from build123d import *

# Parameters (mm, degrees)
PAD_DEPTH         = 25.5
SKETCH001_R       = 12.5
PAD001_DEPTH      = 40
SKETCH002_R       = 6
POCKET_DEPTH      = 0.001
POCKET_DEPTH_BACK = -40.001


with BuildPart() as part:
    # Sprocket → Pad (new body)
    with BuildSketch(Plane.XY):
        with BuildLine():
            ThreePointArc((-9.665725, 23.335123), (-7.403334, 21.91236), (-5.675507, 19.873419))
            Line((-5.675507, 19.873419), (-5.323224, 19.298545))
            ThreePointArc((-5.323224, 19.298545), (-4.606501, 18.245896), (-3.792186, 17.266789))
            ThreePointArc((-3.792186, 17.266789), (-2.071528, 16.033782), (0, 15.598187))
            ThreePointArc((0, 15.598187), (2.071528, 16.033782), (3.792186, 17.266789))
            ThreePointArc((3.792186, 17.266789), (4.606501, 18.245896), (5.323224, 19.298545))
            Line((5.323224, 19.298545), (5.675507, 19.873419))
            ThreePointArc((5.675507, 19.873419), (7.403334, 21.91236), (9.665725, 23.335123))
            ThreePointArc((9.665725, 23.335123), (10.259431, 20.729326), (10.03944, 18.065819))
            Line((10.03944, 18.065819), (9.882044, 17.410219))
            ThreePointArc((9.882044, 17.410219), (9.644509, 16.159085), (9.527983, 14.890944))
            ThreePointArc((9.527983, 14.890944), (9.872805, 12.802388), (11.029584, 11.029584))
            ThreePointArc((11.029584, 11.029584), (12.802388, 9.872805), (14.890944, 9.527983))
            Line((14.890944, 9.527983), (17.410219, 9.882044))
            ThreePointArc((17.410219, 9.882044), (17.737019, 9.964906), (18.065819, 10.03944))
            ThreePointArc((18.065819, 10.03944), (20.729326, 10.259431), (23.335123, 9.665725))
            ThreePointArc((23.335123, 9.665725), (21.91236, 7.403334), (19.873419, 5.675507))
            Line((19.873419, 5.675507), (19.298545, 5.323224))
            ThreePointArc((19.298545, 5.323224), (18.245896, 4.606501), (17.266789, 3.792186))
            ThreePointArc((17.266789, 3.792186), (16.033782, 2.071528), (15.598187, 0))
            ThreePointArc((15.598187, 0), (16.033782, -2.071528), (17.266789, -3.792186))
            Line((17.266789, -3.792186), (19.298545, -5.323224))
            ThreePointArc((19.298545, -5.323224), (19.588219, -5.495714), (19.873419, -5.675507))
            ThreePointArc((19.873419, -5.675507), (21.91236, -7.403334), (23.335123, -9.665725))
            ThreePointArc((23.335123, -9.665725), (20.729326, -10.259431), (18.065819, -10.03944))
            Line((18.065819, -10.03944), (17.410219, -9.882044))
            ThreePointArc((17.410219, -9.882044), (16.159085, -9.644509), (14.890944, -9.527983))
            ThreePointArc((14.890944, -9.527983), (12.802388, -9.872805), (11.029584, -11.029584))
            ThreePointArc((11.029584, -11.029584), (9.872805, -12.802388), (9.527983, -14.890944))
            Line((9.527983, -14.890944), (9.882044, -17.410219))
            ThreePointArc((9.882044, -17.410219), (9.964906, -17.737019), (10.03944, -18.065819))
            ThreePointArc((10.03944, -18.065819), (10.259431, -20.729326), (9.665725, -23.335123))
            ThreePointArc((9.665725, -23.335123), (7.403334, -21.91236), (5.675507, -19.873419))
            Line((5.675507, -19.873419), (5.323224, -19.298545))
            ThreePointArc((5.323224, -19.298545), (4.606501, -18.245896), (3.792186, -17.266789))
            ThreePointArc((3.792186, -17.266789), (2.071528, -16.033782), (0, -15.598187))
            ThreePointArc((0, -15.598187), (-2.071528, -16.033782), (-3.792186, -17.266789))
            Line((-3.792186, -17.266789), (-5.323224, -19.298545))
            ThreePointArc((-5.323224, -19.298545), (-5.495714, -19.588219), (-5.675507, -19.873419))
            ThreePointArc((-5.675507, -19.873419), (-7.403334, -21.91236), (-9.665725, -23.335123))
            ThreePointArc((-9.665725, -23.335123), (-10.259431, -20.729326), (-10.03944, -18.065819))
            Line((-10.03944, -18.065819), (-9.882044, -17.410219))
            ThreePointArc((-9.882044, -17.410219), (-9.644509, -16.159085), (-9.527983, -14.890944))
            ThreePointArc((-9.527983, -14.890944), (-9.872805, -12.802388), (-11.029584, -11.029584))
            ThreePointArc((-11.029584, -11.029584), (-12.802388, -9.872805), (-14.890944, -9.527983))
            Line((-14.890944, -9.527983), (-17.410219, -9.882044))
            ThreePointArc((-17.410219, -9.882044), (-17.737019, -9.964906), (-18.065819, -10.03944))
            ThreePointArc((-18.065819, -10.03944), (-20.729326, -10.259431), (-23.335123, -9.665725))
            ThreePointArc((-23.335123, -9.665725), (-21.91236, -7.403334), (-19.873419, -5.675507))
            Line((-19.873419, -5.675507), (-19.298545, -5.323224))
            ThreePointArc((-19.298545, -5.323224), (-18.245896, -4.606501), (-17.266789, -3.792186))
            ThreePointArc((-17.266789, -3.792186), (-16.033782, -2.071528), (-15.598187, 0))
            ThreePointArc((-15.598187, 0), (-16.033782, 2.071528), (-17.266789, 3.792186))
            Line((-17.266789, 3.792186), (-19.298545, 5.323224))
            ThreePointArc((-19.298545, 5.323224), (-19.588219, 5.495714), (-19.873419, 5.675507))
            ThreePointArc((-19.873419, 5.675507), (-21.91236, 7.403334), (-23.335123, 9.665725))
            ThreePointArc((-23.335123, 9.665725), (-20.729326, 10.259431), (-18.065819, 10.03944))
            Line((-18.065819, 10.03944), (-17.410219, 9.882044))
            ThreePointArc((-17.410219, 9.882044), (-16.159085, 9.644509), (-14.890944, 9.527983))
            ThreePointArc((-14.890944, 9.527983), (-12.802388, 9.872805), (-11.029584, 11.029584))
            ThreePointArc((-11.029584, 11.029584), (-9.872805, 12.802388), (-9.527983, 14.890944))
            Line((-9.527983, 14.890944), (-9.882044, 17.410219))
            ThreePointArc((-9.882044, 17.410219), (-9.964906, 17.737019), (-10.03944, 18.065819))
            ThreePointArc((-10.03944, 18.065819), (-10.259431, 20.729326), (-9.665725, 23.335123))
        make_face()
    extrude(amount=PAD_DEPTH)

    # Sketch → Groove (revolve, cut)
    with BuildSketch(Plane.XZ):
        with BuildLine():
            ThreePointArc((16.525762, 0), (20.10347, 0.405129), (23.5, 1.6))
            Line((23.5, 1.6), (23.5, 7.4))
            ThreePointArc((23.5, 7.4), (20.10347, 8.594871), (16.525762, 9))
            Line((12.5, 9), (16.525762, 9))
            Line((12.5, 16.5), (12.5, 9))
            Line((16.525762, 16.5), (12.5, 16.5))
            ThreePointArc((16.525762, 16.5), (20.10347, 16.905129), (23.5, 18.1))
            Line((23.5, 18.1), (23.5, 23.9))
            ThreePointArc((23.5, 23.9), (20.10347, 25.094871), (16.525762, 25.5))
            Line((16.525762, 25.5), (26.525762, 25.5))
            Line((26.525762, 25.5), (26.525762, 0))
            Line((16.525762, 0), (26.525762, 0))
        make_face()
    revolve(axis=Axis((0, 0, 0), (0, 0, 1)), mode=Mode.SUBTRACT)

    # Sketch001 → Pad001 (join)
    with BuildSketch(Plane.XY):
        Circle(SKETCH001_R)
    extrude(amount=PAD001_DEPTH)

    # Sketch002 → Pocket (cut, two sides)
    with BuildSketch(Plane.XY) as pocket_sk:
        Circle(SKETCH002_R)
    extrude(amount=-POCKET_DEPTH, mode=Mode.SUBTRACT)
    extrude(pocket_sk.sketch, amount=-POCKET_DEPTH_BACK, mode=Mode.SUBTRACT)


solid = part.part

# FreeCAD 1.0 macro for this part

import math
import FreeCAD as App
import Part
import Sketcher
from FreeCAD import Vector
Q = App.Units.Quantity

doc = App.newDocument("Part")
body = doc.addObject("PartDesign::Body", "Body")

# Sketch on XY plane
sketch1 = body.newObject("Sketcher::SketchObject", "Sketch")
sketch1.AttachmentSupport = (doc.getObject("XY_Plane"), [""])
sketch1.MapMode = "FlatFace"
sketch1.addGeometry([
    Part.ArcOfCircle(Part.Circle(Vector(-13.141261, 15.298398, 0), Vector(0, 0, 1), 8.756044), math.radians(31.500006), math.radians(66.613605)),  # 0
    Part.ArcOfCircle(Part.Circle(Vector(-1.525324, 20.109877, 0), Vector(0, 0, 1), 8.756046), math.radians(158.386411), math.radians(193.499995)),  # 1
    Part.ArcOfCircle(Part.Circle(Vector(2.939557, 20.835114, 0), Vector(0, 0, 1), 13.271147), math.radians(-167.955557), math.radians(-165.044382)),  # 2
    Part.LineSegment(Vector(-9.882044, 17.410219, 0), Vector(-9.527983, 14.890944, 0)),  # 3
    Part.ArcOfCircle(Part.Circle(Vector(-14.666587, 14.666588, 0), Vector(0, 0, 1), 5.1435), math.radians(-45.000004), math.radians(2.499998)),  # 4
    Part.ArcOfCircle(Part.Circle(Vector(-14.666588, 14.666587, 0), Vector(0, 0, 1), 5.1435), math.radians(-92.499998), math.radians(-44.999996)),  # 5
    Part.ArcOfCircle(Part.Circle(Vector(-14.312043, 22.786894, 0), Vector(0, 0, 1), 13.271543), math.radians(-103.499981), math.radians(-92.500019)),  # 6
    Part.LineSegment(Vector(-17.410219, 9.882044, 0), Vector(-18.065819, 10.03944, 0)),  # 7
    Part.ArcOfCircle(Part.Circle(Vector(-20.109877, 1.525324, 0), Vector(0, 0, 1), 8.756046), math.radians(76.500005), math.radians(111.613589)),  # 8
    Part.ArcOfCircle(Part.Circle(Vector(-15.298398, 13.141261, 0), Vector(0, 0, 1), 8.756044), math.radians(-156.613605), math.radians(-121.500006)),  # 9
    Part.ArcOfCircle(Part.Circle(Vector(-12.653848, 16.811587, 0), Vector(0, 0, 1), 13.271567), math.radians(-122.955522), math.radians(-120.044443)),  # 10
    Part.LineSegment(Vector(-19.298545, 5.323224, 0), Vector(-17.266789, 3.792186, 0)),  # 11
    Part.ArcOfCircle(Part.Circle(Vector(-20.74168, 0.000003, 0), Vector(0, 0, 1), 5.143493), math.radians(-0.00003), math.radians(47.500036)),  # 12
    Part.ArcOfCircle(Part.Circle(Vector(-20.74168, -0.000003, 0), Vector(0, 0, 1), 5.143493), math.radians(-47.500036), math.radians(0.00003)),  # 13
    Part.ArcOfCircle(Part.Circle(Vector(-26.23286, 5.992557, 0), Vector(0, 0, 1), 13.271459), math.radians(-58.500017), math.radians(-47.499982)),  # 14
    Part.LineSegment(Vector(-19.298545, -5.323224, 0), Vector(-19.873419, -5.675507, 0)),  # 15
    Part.ArcOfCircle(Part.Circle(Vector(-15.298398, -13.141261, 0), Vector(0, 0, 1), 8.756044), math.radians(121.500006), math.radians(156.613605)),  # 16
    Part.ArcOfCircle(Part.Circle(Vector(-20.109877, -1.525324, 0), Vector(0, 0, 1), 8.756046), math.radians(-111.613589), math.radians(-76.500005)),  # 17
    Part.ArcOfCircle(Part.Circle(Vector(-20.835114, 2.939557, 0), Vector(0, 0, 1), 13.271147), math.radians(-77.955557), math.radians(-75.044382)),  # 18
    Part.LineSegment(Vector(-17.410219, -9.882044, 0), Vector(-14.890944, -9.527983, 0)),  # 19
    Part.ArcOfCircle(Part.Circle(Vector(-14.666588, -14.666587, 0), Vector(0, 0, 1), 5.1435), math.radians(44.999996), math.radians(92.499998)),  # 20
    Part.ArcOfCircle(Part.Circle(Vector(-14.666587, -14.666588, 0), Vector(0, 0, 1), 5.1435), math.radians(-2.499998), math.radians(45.000004)),  # 21
    Part.ArcOfCircle(Part.Circle(Vector(-22.786894, -14.312043, 0), Vector(0, 0, 1), 13.271543), math.radians(-13.499981), math.radians(-2.500019)),  # 22
    Part.LineSegment(Vector(-9.882044, -17.410219, 0), Vector(-10.03944, -18.065819, 0)),  # 23
    Part.ArcOfCircle(Part.Circle(Vector(-1.525324, -20.109877, 0), Vector(0, 0, 1), 8.756046), math.radians(166.500005), math.radians(201.613589)),  # 24
    Part.ArcOfCircle(Part.Circle(Vector(-13.141261, -15.298398, 0), Vector(0, 0, 1), 8.756044), math.radians(-66.613605), math.radians(-31.500006)),  # 25
    Part.ArcOfCircle(Part.Circle(Vector(-16.811587, -12.653848, 0), Vector(0, 0, 1), 13.271567), math.radians(-32.955522), math.radians(-30.044443)),  # 26
    Part.LineSegment(Vector(-5.323224, -19.298545, 0), Vector(-3.792186, -17.266789, 0)),  # 27
    Part.ArcOfCircle(Part.Circle(Vector(-0.000003, -20.74168, 0), Vector(0, 0, 1), 5.143493), math.radians(89.99997), math.radians(137.500036)),  # 28
    Part.ArcOfCircle(Part.Circle(Vector(0.000003, -20.74168, 0), Vector(0, 0, 1), 5.143493), math.radians(42.499964), math.radians(90.00003)),  # 29
    Part.ArcOfCircle(Part.Circle(Vector(-5.992557, -26.23286, 0), Vector(0, 0, 1), 13.271459), math.radians(31.499983), math.radians(42.500018)),  # 30
    Part.LineSegment(Vector(5.323224, -19.298545, 0), Vector(5.675507, -19.873419, 0)),  # 31
    Part.ArcOfCircle(Part.Circle(Vector(13.141261, -15.298398, 0), Vector(0, 0, 1), 8.756044), math.radians(-148.499994), math.radians(-113.386395)),  # 32
    Part.ArcOfCircle(Part.Circle(Vector(1.525324, -20.109877, 0), Vector(0, 0, 1), 8.756046), math.radians(-21.613589), math.radians(13.499995)),  # 33
    Part.ArcOfCircle(Part.Circle(Vector(-2.939557, -20.835114, 0), Vector(0, 0, 1), 13.271147), math.radians(12.044443), math.radians(14.955618)),  # 34
    Part.LineSegment(Vector(9.882044, -17.410219, 0), Vector(9.527983, -14.890944, 0)),  # 35
    Part.ArcOfCircle(Part.Circle(Vector(14.666587, -14.666588, 0), Vector(0, 0, 1), 5.1435), math.radians(134.999996), math.radians(182.499998)),  # 36
    Part.ArcOfCircle(Part.Circle(Vector(14.666588, -14.666587, 0), Vector(0, 0, 1), 5.1435), math.radians(87.500002), math.radians(135.000004)),  # 37
    Part.ArcOfCircle(Part.Circle(Vector(14.312043, -22.786894, 0), Vector(0, 0, 1), 13.271543), math.radians(76.500019), math.radians(87.499981)),  # 38
    Part.LineSegment(Vector(17.410219, -9.882044, 0), Vector(18.065819, -10.03944, 0)),  # 39
    Part.ArcOfCircle(Part.Circle(Vector(20.109877, -1.525324, 0), Vector(0, 0, 1), 8.756046), math.radians(-103.499995), math.radians(-68.386411)),  # 40
    Part.ArcOfCircle(Part.Circle(Vector(15.298398, -13.141261, 0), Vector(0, 0, 1), 8.756044), math.radians(23.386395), math.radians(58.499994)),  # 41
    Part.ArcOfCircle(Part.Circle(Vector(12.653848, -16.811587, 0), Vector(0, 0, 1), 13.271567), math.radians(57.044478), math.radians(59.955557)),  # 42
    Part.LineSegment(Vector(19.298545, -5.323224, 0), Vector(17.266789, -3.792186, 0)),  # 43
    Part.ArcOfCircle(Part.Circle(Vector(20.74168, -0.000003, 0), Vector(0, 0, 1), 5.143493), math.radians(179.99997), math.radians(227.500036)),  # 44
    Part.ArcOfCircle(Part.Circle(Vector(20.74168, 0.000003, 0), Vector(0, 0, 1), 5.143493), math.radians(132.499964), math.radians(180.00003)),  # 45
    Part.ArcOfCircle(Part.Circle(Vector(26.23286, -5.992557, 0), Vector(0, 0, 1), 13.271459), math.radians(121.499983), math.radians(132.500018)),  # 46
    Part.LineSegment(Vector(19.298545, 5.323224, 0), Vector(19.873419, 5.675507, 0)),  # 47
    Part.ArcOfCircle(Part.Circle(Vector(15.298398, 13.141261, 0), Vector(0, 0, 1), 8.756044), math.radians(-58.499994), math.radians(-23.386395)),  # 48
    Part.ArcOfCircle(Part.Circle(Vector(20.109877, 1.525324, 0), Vector(0, 0, 1), 8.756046), math.radians(68.386411), math.radians(103.499995)),  # 49
    Part.ArcOfCircle(Part.Circle(Vector(20.835114, -2.939557, 0), Vector(0, 0, 1), 13.271147), math.radians(102.044443), math.radians(104.955618)),  # 50
    Part.LineSegment(Vector(17.410219, 9.882044, 0), Vector(14.890944, 9.527983, 0)),  # 51
    Part.ArcOfCircle(Part.Circle(Vector(14.666588, 14.666587, 0), Vector(0, 0, 1), 5.1435), math.radians(-135.000004), math.radians(-87.500002)),  # 52
    Part.ArcOfCircle(Part.Circle(Vector(14.666587, 14.666588, 0), Vector(0, 0, 1), 5.1435), math.radians(177.500002), math.radians(225.000004)),  # 53
    Part.ArcOfCircle(Part.Circle(Vector(22.786894, 14.312043, 0), Vector(0, 0, 1), 13.271543), math.radians(166.500019), math.radians(177.499981)),  # 54
    Part.LineSegment(Vector(9.882044, 17.410219, 0), Vector(10.03944, 18.065819, 0)),  # 55
    Part.ArcOfCircle(Part.Circle(Vector(1.525324, 20.109877, 0), Vector(0, 0, 1), 8.756046), math.radians(-13.499995), math.radians(21.613589)),  # 56
    Part.ArcOfCircle(Part.Circle(Vector(13.141261, 15.298398, 0), Vector(0, 0, 1), 8.756044), math.radians(113.386395), math.radians(148.499994)),  # 57
    Part.LineSegment(Vector(5.675507, 19.873419, 0), Vector(5.323224, 19.298545, 0)),  # 58
    Part.ArcOfCircle(Part.Circle(Vector(-5.992557, 26.23286, 0), Vector(0, 0, 1), 13.271459), math.radians(-42.500018), math.radians(-31.499983)),  # 59
    Part.ArcOfCircle(Part.Circle(Vector(0.000003, 20.74168, 0), Vector(0, 0, 1), 5.143493), math.radians(-90.00003), math.radians(-42.499964)),  # 60
    Part.ArcOfCircle(Part.Circle(Vector(-0.000003, 20.74168, 0), Vector(0, 0, 1), 5.143493), math.radians(-137.500036), math.radians(-89.99997)),  # 61
    Part.ArcOfCircle(Part.Circle(Vector(5.992557, 26.23286, 0), Vector(0, 0, 1), 13.271459), math.radians(-148.500017), math.radians(-137.499982)),  # 62
    Part.LineSegment(Vector(-5.323224, 19.298545, 0), Vector(-5.675507, 19.873419, 0)),  # 63
], False)
sketch1.addConstraint([
    Sketcher.Constraint("Coincident", 0, 2, 1, 1),
    Sketcher.Constraint("Coincident", 1, 2, 2, 1),
    Sketcher.Constraint("Coincident", 2, 2, 3, 1),
    Sketcher.Constraint("Coincident", 3, 2, 4, 2),
    Sketcher.Constraint("Tangent", 4, 1, 5, 2),
    Sketcher.Constraint("Tangent", 5, 1, 6, 2),
    Sketcher.Constraint("Tangent", 6, 1, 7, 1),
    Sketcher.Constraint("Tangent", 7, 2, 8, 1),
    Sketcher.Constraint("Coincident", 8, 2, 9, 1),
    Sketcher.Constraint("Coincident", 9, 2, 10, 1),
    Sketcher.Constraint("Coincident", 10, 2, 11, 1),
    Sketcher.Constraint("Coincident", 11, 2, 12, 2),
    Sketcher.Constraint("Tangent", 12, 1, 13, 2),
    Sketcher.Constraint("Tangent", 13, 1, 14, 2),
    Sketcher.Constraint("Tangent", 14, 1, 15, 1),
    Sketcher.Constraint("Tangent", 15, 2, 16, 1),
    Sketcher.Constraint("Coincident", 16, 2, 17, 1),
    Sketcher.Constraint("Coincident", 17, 2, 18, 1),
    Sketcher.Constraint("Coincident", 18, 2, 19, 1),
    Sketcher.Constraint("Coincident", 19, 2, 20, 2),
    Sketcher.Constraint("Tangent", 20, 1, 21, 2),
    Sketcher.Constraint("Tangent", 21, 1, 22, 2),
    Sketcher.Constraint("Tangent", 22, 1, 23, 1),
    Sketcher.Constraint("Tangent", 23, 2, 24, 1),
    Sketcher.Constraint("Coincident", 24, 2, 25, 1),
    Sketcher.Constraint("Coincident", 25, 2, 26, 1),
    Sketcher.Constraint("Coincident", 26, 2, 27, 1),
    Sketcher.Constraint("Coincident", 27, 2, 28, 2),
    Sketcher.Constraint("Tangent", 28, 1, 29, 2),
    Sketcher.Constraint("Tangent", 29, 1, 30, 2),
    Sketcher.Constraint("Tangent", 30, 1, 31, 1),
    Sketcher.Constraint("Tangent", 31, 2, 32, 1),
    Sketcher.Constraint("Coincident", 32, 2, 33, 1),
    Sketcher.Constraint("Coincident", 33, 2, 34, 1),
    Sketcher.Constraint("Coincident", 34, 2, 35, 1),
    Sketcher.Constraint("Coincident", 35, 2, 36, 2),
    Sketcher.Constraint("Tangent", 36, 1, 37, 2),
    Sketcher.Constraint("Tangent", 37, 1, 38, 2),
    Sketcher.Constraint("Tangent", 38, 1, 39, 1),
    Sketcher.Constraint("Tangent", 39, 2, 40, 1),
    Sketcher.Constraint("Coincident", 40, 2, 41, 1),
    Sketcher.Constraint("Coincident", 41, 2, 42, 1),
    Sketcher.Constraint("Coincident", 42, 2, 43, 1),
    Sketcher.Constraint("Coincident", 43, 2, 44, 2),
    Sketcher.Constraint("Tangent", 44, 1, 45, 2),
    Sketcher.Constraint("Tangent", 45, 1, 46, 2),
    Sketcher.Constraint("Tangent", 46, 1, 47, 1),
    Sketcher.Constraint("Tangent", 47, 2, 48, 1),
    Sketcher.Constraint("Coincident", 48, 2, 49, 1),
    Sketcher.Constraint("Coincident", 49, 2, 50, 1),
    Sketcher.Constraint("Coincident", 50, 2, 51, 1),
    Sketcher.Constraint("Coincident", 51, 2, 52, 2),
    Sketcher.Constraint("Tangent", 52, 1, 53, 2),
    Sketcher.Constraint("Tangent", 53, 1, 54, 2),
    Sketcher.Constraint("Tangent", 54, 1, 55, 1),
    Sketcher.Constraint("Tangent", 55, 2, 56, 1),
    Sketcher.Constraint("Coincident", 56, 2, 57, 1),
    Sketcher.Constraint("Tangent", 57, 2, 58, 1),
    Sketcher.Constraint("Tangent", 58, 2, 59, 2),
    Sketcher.Constraint("Tangent", 59, 1, 60, 2),
    Sketcher.Constraint("Tangent", 60, 1, 61, 2),
    Sketcher.Constraint("Tangent", 61, 1, 62, 2),
    Sketcher.Constraint("Tangent", 62, 1, 63, 1),
    Sketcher.Constraint("Tangent", 63, 2, 0, 1),
    Sketcher.Constraint("Equal", 4, 5),
    Sketcher.Constraint("Equal", 1, 8),
    Sketcher.Constraint("Equal", 0, 9),
    Sketcher.Constraint("Equal", 12, 13),
    Sketcher.Constraint("Equal", 9, 16),
    Sketcher.Constraint("Equal", 8, 17),
    Sketcher.Constraint("Equal", 2, 18),
    Sketcher.Constraint("Equal", 5, 20),
    Sketcher.Constraint("Equal", 20, 21),
    Sketcher.Constraint("Equal", 6, 22),
    Sketcher.Constraint("Equal", 17, 24),
    Sketcher.Constraint("Equal", 16, 25),
    Sketcher.Constraint("Equal", 10, 26),
    Sketcher.Constraint("Equal", 13, 28),
    Sketcher.Constraint("Equal", 28, 29),
    Sketcher.Constraint("Equal", 14, 30),
    Sketcher.Constraint("Equal", 25, 32),
    Sketcher.Constraint("Equal", 24, 33),
    Sketcher.Constraint("Equal", 18, 34),
    Sketcher.Constraint("Equal", 21, 36),
    Sketcher.Constraint("Equal", 36, 37),
    Sketcher.Constraint("Equal", 22, 38),
    Sketcher.Constraint("Equal", 33, 40),
    Sketcher.Constraint("Equal", 32, 41),
    Sketcher.Constraint("Equal", 26, 42),
    Sketcher.Constraint("Equal", 29, 44),
    Sketcher.Constraint("Equal", 44, 45),
    Sketcher.Constraint("Equal", 30, 46),
    Sketcher.Constraint("Equal", 41, 48),
    Sketcher.Constraint("Equal", 40, 49),
    Sketcher.Constraint("Equal", 34, 50),
    Sketcher.Constraint("Equal", 37, 52),
    Sketcher.Constraint("Equal", 52, 53),
    Sketcher.Constraint("Equal", 38, 54),
    Sketcher.Constraint("Equal", 49, 56),
    Sketcher.Constraint("Equal", 48, 57),
    Sketcher.Constraint("Equal", 46, 59),
    Sketcher.Constraint("Equal", 45, 60),
    Sketcher.Constraint("Equal", 60, 61),
    Sketcher.Constraint("Equal", 59, 62),
    Sketcher.Constraint("Symmetric", 0, 3, 32, 3, -1, 1),
    Sketcher.Constraint("Symmetric", 1, 3, 33, 3, -1, 1),
    Sketcher.Constraint("Symmetric", 2, 3, 34, 3, -1, 1),
    Sketcher.Constraint("Symmetric", 4, 3, 36, 3, -1, 1),
    Sketcher.Constraint("Symmetric", 8, 3, 40, 3, -1, 1),
    Sketcher.Constraint("Symmetric", 9, 3, 41, 3, -1, 1),
    Sketcher.Constraint("Symmetric", 10, 3, 42, 3, -1, 1),
    Sketcher.Constraint("Symmetric", 12, 3, 44, 3, -1, 1),
    Sketcher.Constraint("Symmetric", 16, 3, 48, 3, -1, 1),
    Sketcher.Constraint("Symmetric", 17, 3, 49, 3, -1, 1),
    Sketcher.Constraint("Symmetric", 18, 3, 50, 3, -1, 1),
    Sketcher.Constraint("Symmetric", 20, 3, 52, 3, -1, 1),
    Sketcher.Constraint("Symmetric", 24, 3, 56, 3, -1, 1),
    Sketcher.Constraint("Symmetric", 25, 3, 57, 3, -1, 1),
    Sketcher.Constraint("Symmetric", 28, 3, 60, 3, -1, 1),
    Sketcher.Constraint("Symmetric", 26, 2, 58, 2, -1, 1),
    Sketcher.Constraint("Symmetric", 25, 3, 32, 3, -2),
    Sketcher.Constraint("Symmetric", 24, 3, 33, 3, -2),
    Sketcher.Constraint("Symmetric", 20, 3, 36, 3, -2),
    Sketcher.Constraint("Symmetric", 17, 3, 40, 3, -2),
    Sketcher.Constraint("Symmetric", 16, 3, 41, 3, -2),
    Sketcher.Constraint("Symmetric", 59, 3, 62, 3, -2),
    Sketcher.Constraint("Symmetric", 22, 1, 34, 2, -2),
    Sketcher.Constraint("Symmetric", 18, 2, 38, 1, -2),
    Sketcher.Constraint("Symmetric", 14, 1, 42, 2, -2),
    Sketcher.Constraint("Symmetric", 13, 1, 43, 2, -2),
    Sketcher.Constraint("Symmetric", 10, 2, 46, 1, -2),
    Sketcher.Constraint("Symmetric", 6, 1, 50, 2, -2),
    Sketcher.Constraint("Symmetric", 2, 2, 54, 1, -2),
    Sketcher.Constraint("PointOnObject", 12, 1, -1),
    Sketcher.Constraint("PointOnObject", 28, 1, -2),
    Sketcher.Constraint("PointOnObject", 44, 1, -1),
    Sketcher.Constraint("PointOnObject", 60, 1, -2),
    Sketcher.Constraint("Perpendicular", 3, 19),
    Sketcher.Constraint("Perpendicular", 7, 23),
    Sketcher.Constraint("Perpendicular", 11, 27),
    Sketcher.Constraint("Perpendicular", 15, 31),
    Sketcher.Constraint("Perpendicular", 19, 35),
    Sketcher.Constraint("Perpendicular", 27, 43),
    Sketcher.Constraint("Perpendicular", 35, 51),
    Sketcher.Constraint("Perpendicular", 47, 63),
    Sketcher.Constraint("Horizontal", 27, 2, 29, 1),
    Sketcher.Constraint("Horizontal", 25, 2, 31, 2),
    Sketcher.Constraint("Horizontal", 23, 2, 33, 2),
    Sketcher.Constraint("Horizontal", 21, 1, 35, 2),
    Sketcher.Constraint("Horizontal", 20, 1, 36, 1),
    Sketcher.Constraint("Horizontal", 19, 2, 37, 1),
    Sketcher.Constraint("Horizontal", 17, 2, 39, 2),
    Sketcher.Constraint("Horizontal", 15, 2, 41, 2),
    Sketcher.Constraint("Horizontal", 4, 1, 52, 1),
    Sketcher.Constraint("Vertical", 4, 1, 20, 1),
    Sketcher.Constraint("Equal", 3, 11),
    Sketcher.Constraint("Equal", 7, 15),
    Sketcher.Constraint("Equal", 15, 23),
    Sketcher.Constraint("Equal", 23, 31),
    Sketcher.Constraint("Angle", 3, Q("-82 deg")),
    Sketcher.Constraint("Angle", 11, Q("-37.000001 deg")),
    Sketcher.Constraint("Angle", 15, Q("-148.500017 deg")),
    Sketcher.Constraint("Radius", 4, 5.1435),
    Sketcher.Constraint("Radius", 14, 13.271459),
    Sketcher.Constraint("Radius", 0, 8.756044),
    Sketcher.Constraint("Radius", 1, 8.756046),
    Sketcher.Constraint("Radius", 2, 13.271147),
    Sketcher.Constraint("Radius", 6, 13.271543),
    Sketcher.Constraint("Radius", 10, 13.271567),
    Sketcher.Constraint("Radius", 12, 5.143493),
    Sketcher.Constraint("Distance", 7, 0.674229),
    Sketcher.Constraint("DistanceX", 10, 3, -1, 1, 12.653848),
    Sketcher.Constraint("DistanceY", 26, 3, -1, 1, 12.653848),
    Sketcher.Constraint("DistanceX", 1, 2, -1, 1, 10.03944),
    Sketcher.Constraint("DistanceY", -1, 1, 1, 2, 18.065819),
    Sketcher.Constraint("DistanceX", 4, 1, -1, 1, 11.029584),
])
pad1 = body.newObject("PartDesign::Pad", "Pad")
pad1.Profile = sketch1
pad1.Length = 25.5

# Sketch on XZ plane
sketch2 = body.newObject("Sketcher::SketchObject", "Sketch001")
sketch2.AttachmentSupport = (doc.getObject("XZ_Plane"), [""])
sketch2.MapMode = "FlatFace"
sketch2.addGeometry([
    Part.ArcOfCircle(Part.Circle(Vector(16.525761, 16.000002, 0), Vector(0, 0, 1), 16.000002), math.radians(-89.999997), math.radians(-64.158069)),  # 0
    Part.LineSegment(Vector(16.525762, 0, 0), Vector(26.525762, 0, 0)),  # 1
    Part.LineSegment(Vector(26.525762, 0, 0), Vector(26.525762, 25.5, 0)),  # 2
    Part.LineSegment(Vector(26.525762, 25.5, 0), Vector(16.525762, 25.5, 0)),  # 3
    Part.ArcOfCircle(Part.Circle(Vector(16.525761, 9.499998, 0), Vector(0, 0, 1), 16.000002), math.radians(64.158069), math.radians(89.999997)),  # 4
    Part.LineSegment(Vector(23.5, 23.9, 0), Vector(23.5, 18.1, 0)),  # 5
    Part.ArcOfCircle(Part.Circle(Vector(16.525761, 32.500002, 0), Vector(0, 0, 1), 16.000002), math.radians(-89.999997), math.radians(-64.158069)),  # 6
    Part.LineSegment(Vector(16.525762, 16.5, 0), Vector(12.5, 16.5, 0)),  # 7
    Part.LineSegment(Vector(12.5, 16.5, 0), Vector(12.5, 9, 0)),  # 8
    Part.LineSegment(Vector(12.5, 9, 0), Vector(16.525762, 9, 0)),  # 9
    Part.ArcOfCircle(Part.Circle(Vector(16.525761, -7.000002, 0), Vector(0, 0, 1), 16.000002), math.radians(64.158069), math.radians(89.999997)),  # 10
    Part.LineSegment(Vector(23.5, 7.4, 0), Vector(23.5, 1.6, 0)),  # 11
], False)
sketch2.addConstraint([
    Sketcher.Constraint("Tangent", 0, 1, 1, 1),
    Sketcher.Constraint("Coincident", 1, 2, 2, 1),
    Sketcher.Constraint("Coincident", 2, 2, 3, 1),
    Sketcher.Constraint("Tangent", 3, 2, 4, 2),
    Sketcher.Constraint("Coincident", 4, 1, 5, 1),
    Sketcher.Constraint("Coincident", 5, 2, 6, 2),
    Sketcher.Constraint("Tangent", 6, 1, 7, 1),
    Sketcher.Constraint("Coincident", 7, 2, 8, 1),
    Sketcher.Constraint("Coincident", 8, 2, 9, 1),
    Sketcher.Constraint("Tangent", 9, 2, 10, 2),
    Sketcher.Constraint("Coincident", 10, 1, 11, 1),
    Sketcher.Constraint("Coincident", 11, 2, 0, 2),
    Sketcher.Constraint("Horizontal", 1),
    Sketcher.Constraint("Vertical", 2),
    Sketcher.Constraint("Horizontal", 3),
    Sketcher.Constraint("Vertical", 5),
    Sketcher.Constraint("Horizontal", 7),
    Sketcher.Constraint("Vertical", 8),
    Sketcher.Constraint("Horizontal", 9),
    Sketcher.Constraint("Vertical", 11),
    Sketcher.Constraint("Equal", 0, 4),
    Sketcher.Constraint("Equal", 4, 6),
    Sketcher.Constraint("Equal", 6, 10),
    Sketcher.Constraint("PointOnObject", 0, 1, -1),
    Sketcher.Constraint("Vertical", 0, 3, 4, 3),
    Sketcher.Constraint("Vertical", 4, 3, 6, 3),
    Sketcher.Constraint("Vertical", 6, 3, 10, 3),
    Sketcher.Constraint("Vertical", 5, 2, 10, 1),
    Sketcher.Constraint("Equal", 5, 11),
    Sketcher.Constraint("DistanceX", 1, 1, 1, 2, 10.0),
    Sketcher.Constraint("DistanceY", 2, 1, 2, 2, 25.5),
    Sketcher.Constraint("DistanceY", 5, 2, 5, 1, 5.8),
    Sketcher.Constraint("DistanceY", 8, 2, 8, 1, 7.5),
    Sketcher.Constraint("DistanceX", 7, 2, 5, 2, 11.0),
    Sketcher.Constraint("DistanceX", -1, 1, 4, 1, 23.5),
    Sketcher.Constraint("Radius", 0, 16.000002),
])
groove = body.newObject("PartDesign::Groove", "Groove")
groove.Profile = sketch2
groove.ReferenceAxis = (sketch2, ["V_Axis"])
groove.Angle = 360

# Sketch on XY plane
sketch3 = body.newObject("Sketcher::SketchObject", "Sketch002")
sketch3.AttachmentSupport = (doc.getObject("XY_Plane"), [""])
sketch3.MapMode = "FlatFace"
sketch3.addGeometry(Part.Circle(Vector(0, 0, 0), Vector(0, 0, 1), 12.5), False)
sketch3.addConstraint([
    Sketcher.Constraint("Coincident", 0, 3, -1, 1),
    Sketcher.Constraint("Diameter", 0, 25.0),
])
pad2 = body.newObject("PartDesign::Pad", "Pad001")
pad2.Profile = sketch3
pad2.Length = 40

# Sketch on XY plane
sketch4 = body.newObject("Sketcher::SketchObject", "Sketch003")
sketch4.AttachmentSupport = (doc.getObject("XY_Plane"), [""])
sketch4.MapMode = "FlatFace"
sketch4.addGeometry(Part.Circle(Vector(0, 0, 0), Vector(0, 0, 1), 6), False)
sketch4.addConstraint([
    Sketcher.Constraint("Coincident", 0, 3, -1, 1),
    Sketcher.Constraint("Diameter", 0, 12.0),
])
pocket1 = body.newObject("PartDesign::Pocket", "Pocket")
pocket1.Profile = sketch4
pocket1.Type = "ThroughAll"
pocket1.Midplane = True

doc.recompute()
